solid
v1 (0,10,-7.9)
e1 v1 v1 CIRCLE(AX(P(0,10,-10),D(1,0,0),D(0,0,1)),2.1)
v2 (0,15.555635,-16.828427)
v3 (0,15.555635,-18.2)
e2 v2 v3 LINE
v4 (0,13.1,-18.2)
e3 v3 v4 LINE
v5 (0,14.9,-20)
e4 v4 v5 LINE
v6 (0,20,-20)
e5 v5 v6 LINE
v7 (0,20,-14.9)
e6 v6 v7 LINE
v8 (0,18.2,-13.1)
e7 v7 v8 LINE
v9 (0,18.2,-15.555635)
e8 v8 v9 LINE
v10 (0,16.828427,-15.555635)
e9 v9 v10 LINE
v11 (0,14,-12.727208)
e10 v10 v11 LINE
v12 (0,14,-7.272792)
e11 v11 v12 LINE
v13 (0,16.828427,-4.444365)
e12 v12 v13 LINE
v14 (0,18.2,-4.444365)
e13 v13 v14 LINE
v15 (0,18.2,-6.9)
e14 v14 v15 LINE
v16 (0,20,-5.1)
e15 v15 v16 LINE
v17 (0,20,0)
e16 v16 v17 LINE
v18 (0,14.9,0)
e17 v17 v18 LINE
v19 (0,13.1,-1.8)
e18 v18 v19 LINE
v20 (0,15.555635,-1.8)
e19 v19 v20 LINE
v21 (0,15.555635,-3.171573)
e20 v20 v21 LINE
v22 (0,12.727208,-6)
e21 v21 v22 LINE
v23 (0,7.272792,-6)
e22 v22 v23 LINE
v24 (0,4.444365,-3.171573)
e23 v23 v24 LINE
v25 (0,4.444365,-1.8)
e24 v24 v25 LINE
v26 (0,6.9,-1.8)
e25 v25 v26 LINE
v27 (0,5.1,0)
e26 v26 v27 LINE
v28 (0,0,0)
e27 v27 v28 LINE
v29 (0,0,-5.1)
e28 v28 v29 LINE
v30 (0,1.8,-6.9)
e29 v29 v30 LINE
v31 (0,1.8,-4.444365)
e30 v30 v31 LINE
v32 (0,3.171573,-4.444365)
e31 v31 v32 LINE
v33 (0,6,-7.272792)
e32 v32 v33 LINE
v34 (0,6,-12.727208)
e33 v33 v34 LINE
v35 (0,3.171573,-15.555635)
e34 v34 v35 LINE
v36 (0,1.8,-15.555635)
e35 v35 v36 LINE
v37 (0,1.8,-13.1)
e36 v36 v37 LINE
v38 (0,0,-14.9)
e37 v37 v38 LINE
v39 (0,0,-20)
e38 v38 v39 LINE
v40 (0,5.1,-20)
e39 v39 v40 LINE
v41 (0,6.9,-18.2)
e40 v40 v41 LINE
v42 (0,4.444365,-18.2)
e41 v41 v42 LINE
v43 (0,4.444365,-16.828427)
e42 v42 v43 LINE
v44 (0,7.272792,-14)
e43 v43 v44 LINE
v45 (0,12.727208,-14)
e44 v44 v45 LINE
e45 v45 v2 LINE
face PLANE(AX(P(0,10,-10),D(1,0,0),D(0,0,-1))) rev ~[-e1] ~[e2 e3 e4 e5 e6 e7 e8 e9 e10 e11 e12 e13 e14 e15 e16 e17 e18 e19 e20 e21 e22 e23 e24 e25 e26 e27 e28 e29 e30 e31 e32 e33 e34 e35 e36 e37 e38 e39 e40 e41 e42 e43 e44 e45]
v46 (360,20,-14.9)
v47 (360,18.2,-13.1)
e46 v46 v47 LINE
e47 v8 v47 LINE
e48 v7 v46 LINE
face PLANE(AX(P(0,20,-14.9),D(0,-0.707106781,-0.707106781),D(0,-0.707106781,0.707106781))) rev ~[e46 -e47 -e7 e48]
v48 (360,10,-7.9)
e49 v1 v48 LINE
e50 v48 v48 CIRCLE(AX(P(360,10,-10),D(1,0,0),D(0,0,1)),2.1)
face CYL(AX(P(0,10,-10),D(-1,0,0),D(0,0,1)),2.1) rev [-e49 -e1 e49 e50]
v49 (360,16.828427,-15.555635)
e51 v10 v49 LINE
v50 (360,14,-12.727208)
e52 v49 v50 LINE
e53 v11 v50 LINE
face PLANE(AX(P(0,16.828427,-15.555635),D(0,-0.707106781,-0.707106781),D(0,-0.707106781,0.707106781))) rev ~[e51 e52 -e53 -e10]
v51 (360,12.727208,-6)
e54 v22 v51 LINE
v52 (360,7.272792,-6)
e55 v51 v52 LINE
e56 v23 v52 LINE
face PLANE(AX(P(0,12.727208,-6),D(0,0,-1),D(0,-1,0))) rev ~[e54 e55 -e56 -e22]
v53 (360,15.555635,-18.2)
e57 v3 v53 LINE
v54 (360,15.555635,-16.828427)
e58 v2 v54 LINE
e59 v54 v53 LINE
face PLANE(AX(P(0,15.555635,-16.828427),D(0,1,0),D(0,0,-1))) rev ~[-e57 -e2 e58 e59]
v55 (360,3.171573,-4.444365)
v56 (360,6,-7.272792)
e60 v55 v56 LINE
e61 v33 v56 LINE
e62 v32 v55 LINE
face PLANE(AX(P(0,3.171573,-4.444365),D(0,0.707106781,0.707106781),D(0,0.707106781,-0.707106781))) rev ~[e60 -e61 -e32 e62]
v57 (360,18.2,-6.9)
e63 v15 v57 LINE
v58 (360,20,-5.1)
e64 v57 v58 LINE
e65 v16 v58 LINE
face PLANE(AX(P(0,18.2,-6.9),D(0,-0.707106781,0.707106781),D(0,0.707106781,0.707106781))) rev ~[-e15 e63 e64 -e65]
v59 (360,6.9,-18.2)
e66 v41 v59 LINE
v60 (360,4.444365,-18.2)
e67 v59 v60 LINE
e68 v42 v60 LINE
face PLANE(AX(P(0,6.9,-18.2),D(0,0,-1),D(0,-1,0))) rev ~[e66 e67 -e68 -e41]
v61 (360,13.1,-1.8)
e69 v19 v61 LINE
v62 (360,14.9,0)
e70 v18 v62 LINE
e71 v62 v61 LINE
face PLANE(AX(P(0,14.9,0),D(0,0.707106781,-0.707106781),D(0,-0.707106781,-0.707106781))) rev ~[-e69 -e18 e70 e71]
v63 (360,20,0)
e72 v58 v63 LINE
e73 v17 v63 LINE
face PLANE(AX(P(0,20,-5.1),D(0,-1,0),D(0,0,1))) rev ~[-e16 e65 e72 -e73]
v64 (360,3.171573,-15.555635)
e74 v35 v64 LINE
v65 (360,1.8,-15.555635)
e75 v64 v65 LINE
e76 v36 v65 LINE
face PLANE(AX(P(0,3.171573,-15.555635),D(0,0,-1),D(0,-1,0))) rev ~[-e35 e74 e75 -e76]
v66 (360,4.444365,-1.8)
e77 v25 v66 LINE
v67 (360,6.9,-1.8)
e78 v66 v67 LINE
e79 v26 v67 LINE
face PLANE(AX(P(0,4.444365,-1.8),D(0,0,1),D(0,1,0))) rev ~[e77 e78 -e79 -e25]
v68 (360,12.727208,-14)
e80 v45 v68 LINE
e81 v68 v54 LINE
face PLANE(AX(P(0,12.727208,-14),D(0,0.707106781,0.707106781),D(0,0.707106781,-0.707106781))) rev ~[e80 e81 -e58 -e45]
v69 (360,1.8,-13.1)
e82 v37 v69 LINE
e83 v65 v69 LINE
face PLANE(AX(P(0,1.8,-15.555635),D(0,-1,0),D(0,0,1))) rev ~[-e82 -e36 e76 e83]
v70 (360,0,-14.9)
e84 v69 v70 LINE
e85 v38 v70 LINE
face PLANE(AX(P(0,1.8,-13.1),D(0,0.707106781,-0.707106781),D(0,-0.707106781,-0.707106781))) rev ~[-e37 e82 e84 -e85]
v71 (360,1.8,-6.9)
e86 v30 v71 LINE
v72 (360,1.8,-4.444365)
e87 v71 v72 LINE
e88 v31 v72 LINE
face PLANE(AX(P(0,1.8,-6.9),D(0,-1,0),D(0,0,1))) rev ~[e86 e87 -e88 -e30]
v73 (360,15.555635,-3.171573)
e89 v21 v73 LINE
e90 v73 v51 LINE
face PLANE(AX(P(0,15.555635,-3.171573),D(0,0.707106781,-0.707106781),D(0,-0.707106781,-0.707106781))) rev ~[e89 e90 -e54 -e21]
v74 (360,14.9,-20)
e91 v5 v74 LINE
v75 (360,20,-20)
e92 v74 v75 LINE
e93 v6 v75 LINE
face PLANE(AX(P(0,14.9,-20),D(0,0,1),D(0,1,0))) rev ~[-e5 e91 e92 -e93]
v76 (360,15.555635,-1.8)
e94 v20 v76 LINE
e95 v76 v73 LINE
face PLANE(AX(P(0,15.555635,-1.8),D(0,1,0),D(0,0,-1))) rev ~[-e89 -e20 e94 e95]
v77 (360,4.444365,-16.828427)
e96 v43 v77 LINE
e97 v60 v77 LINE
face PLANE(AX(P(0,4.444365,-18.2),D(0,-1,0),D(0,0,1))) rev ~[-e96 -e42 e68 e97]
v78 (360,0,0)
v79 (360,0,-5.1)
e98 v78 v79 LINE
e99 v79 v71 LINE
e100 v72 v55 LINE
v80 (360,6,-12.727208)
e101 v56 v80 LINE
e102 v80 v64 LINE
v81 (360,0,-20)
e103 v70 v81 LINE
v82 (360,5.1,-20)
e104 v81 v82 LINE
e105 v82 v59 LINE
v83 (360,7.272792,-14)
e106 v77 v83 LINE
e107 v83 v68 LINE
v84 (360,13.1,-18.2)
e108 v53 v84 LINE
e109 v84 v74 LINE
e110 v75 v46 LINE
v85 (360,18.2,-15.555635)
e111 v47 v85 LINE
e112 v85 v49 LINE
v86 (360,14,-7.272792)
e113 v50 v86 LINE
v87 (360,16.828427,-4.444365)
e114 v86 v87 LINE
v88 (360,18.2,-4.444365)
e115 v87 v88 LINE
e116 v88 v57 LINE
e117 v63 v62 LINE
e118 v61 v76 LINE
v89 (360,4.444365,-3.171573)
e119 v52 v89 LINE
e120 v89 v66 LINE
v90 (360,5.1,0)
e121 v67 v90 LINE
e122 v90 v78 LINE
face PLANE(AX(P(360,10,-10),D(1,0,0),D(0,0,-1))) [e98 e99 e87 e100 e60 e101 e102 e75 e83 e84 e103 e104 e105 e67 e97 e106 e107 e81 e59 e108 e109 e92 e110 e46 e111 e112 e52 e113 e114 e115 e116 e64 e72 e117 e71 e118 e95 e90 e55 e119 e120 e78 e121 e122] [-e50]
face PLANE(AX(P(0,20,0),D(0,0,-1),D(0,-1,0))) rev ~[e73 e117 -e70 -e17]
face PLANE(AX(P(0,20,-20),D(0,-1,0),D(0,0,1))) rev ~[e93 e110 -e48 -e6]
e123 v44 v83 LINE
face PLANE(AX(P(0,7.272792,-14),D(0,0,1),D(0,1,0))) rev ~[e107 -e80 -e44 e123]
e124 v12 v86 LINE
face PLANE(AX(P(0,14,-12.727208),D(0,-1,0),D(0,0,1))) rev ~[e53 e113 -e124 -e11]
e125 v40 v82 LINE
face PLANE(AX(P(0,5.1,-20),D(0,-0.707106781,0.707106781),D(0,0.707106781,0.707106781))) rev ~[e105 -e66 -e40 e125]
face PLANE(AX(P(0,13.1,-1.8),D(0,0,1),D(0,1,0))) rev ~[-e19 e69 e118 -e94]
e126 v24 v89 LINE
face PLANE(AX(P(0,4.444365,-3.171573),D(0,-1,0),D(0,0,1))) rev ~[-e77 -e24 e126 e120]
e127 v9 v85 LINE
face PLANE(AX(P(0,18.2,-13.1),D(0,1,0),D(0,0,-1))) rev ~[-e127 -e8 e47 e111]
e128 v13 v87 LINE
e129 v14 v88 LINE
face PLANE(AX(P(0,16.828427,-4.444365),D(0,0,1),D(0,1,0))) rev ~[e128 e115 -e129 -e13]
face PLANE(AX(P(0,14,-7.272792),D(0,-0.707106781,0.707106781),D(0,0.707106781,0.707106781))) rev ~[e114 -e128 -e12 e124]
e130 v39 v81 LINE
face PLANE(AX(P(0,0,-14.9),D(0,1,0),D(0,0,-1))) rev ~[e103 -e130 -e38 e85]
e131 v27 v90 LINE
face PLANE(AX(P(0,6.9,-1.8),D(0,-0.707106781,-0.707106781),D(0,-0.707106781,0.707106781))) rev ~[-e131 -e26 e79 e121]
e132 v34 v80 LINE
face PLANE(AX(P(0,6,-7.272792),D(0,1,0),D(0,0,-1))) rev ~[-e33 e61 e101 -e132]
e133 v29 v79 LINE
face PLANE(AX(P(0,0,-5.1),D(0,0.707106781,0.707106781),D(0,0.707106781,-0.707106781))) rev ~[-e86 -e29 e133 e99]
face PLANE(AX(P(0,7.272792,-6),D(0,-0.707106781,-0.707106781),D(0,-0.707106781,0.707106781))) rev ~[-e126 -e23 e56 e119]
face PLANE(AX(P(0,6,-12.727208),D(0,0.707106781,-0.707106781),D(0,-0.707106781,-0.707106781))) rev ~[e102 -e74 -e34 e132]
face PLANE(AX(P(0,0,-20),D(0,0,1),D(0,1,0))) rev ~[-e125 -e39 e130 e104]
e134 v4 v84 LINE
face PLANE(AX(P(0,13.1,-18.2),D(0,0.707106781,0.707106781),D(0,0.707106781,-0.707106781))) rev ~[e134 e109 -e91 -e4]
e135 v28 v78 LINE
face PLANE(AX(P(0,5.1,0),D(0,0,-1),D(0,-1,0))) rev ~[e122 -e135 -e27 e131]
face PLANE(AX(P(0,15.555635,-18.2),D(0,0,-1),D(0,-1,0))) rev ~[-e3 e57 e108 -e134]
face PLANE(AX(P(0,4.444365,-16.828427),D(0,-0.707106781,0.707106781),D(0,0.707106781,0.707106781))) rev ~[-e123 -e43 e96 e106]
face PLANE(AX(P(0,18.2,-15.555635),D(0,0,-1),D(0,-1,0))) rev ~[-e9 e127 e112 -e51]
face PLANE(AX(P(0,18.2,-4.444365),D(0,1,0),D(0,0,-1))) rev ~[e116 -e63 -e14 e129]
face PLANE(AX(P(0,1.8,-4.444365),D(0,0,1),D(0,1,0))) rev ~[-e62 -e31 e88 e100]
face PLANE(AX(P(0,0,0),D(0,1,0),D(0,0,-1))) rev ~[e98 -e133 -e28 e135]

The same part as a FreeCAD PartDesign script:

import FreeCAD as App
import Part
import Sketcher
Q = App.Units.Quantity


def add_polygon(sketch, points):
    """Adds a closed chain of lines whose ends are joined by coincident constraints."""
    first, n = sketch.GeometryCount, len(points)
    for a, b in zip(points, points[1:] + points[:1]):
        sketch.addGeometry(Part.LineSegment(App.Vector(*a, 0), App.Vector(*b, 0)), False)
    for i in range(n):
        sketch.addConstraint(Sketcher.Constraint("Coincident", first + i, 2, first + (i + 1) % n, 1))

doc = App.newDocument("Part")
params = doc.addObject("Spreadsheet::Sheet", "Params")
for row, (alias, value) in enumerate([
    ("sketch1_diameter", "4.2 mm"),
    ("sketch1_length", "4 mm"),
    ("sketch1_width", "5.1 mm"),
    ("pad1_length", "360 mm"),
], start=1):
    params.set(f"A{row}", alias)
    params.set(f"B{row}", "=" + value)
    params.setAlias(f"B{row}", alias)

body = doc.addObject("PartDesign::Body", "Body")

# Sketch on YZ plane
sketch1 = doc.addObject("Sketcher::SketchObject", "Sketch")
body.addObject(sketch1)
sketch1.AttachmentSupport = (doc.YZ_Plane, [""])
sketch1.MapMode = "FlatFace"
add_polygon(sketch1, [(12.7, -6), (7.3, -6), (4.4, -3.2), (4.4, -1.8), (6.9, -1.8), (5.1, 0), (0, 0), (0, -5.1), (1.8, -6.9), (1.8, -4.4), (3.2, -4.4), (6, -7.3), (6, -12.7), (3.2, -15.6), (1.8, -15.6), (1.8, -13.1), (0, -14.9), (0, -20), (5.1, -20), (6.9, -18.2), (4.4, -18.2), (4.4, -16.8), (7.3, -14), (12.7, -14), (15.6, -16.8), (15.6, -18.2), (13.1, -18.2), (14.9, -20), (20, -20), (20, -14.9), (18.2, -13.1), (18.2, -15.6), (16.8, -15.6), (14, -12.7), (14, -7.3), (16.8, -4.4), (18.2, -4.4), (18.2, -6.9), (20, -5.1), (20, 0), (14.9, 0), (13.1, -1.8), (15.6, -1.8), (15.6, -3.2)])  # lines 0-43
sketch1.addGeometry(Part.Circle(App.Vector(10, -10, 0), App.Vector(0, 0, 1), 2.1), False)  # 44
sketch1.addConstraint(Sketcher.Constraint("Horizontal", 0))
sketch1.addConstraint(Sketcher.Constraint("Vertical", 2))
sketch1.addConstraint(Sketcher.Constraint("Horizontal", 3))
sketch1.addConstraint(Sketcher.Constraint("Horizontal", 5))
sketch1.addConstraint(Sketcher.Constraint("Vertical", 6))
sketch1.addConstraint(Sketcher.Constraint("Vertical", 8))
sketch1.addConstraint(Sketcher.Constraint("Horizontal", 9))
sketch1.addConstraint(Sketcher.Constraint("Vertical", 11))
sketch1.addConstraint(Sketcher.Constraint("Horizontal", 13))
sketch1.addConstraint(Sketcher.Constraint("Vertical", 14))
sketch1.addConstraint(Sketcher.Constraint("Vertical", 16))
sketch1.addConstraint(Sketcher.Constraint("Horizontal", 17))
sketch1.addConstraint(Sketcher.Constraint("Horizontal", 19))
sketch1.addConstraint(Sketcher.Constraint("Vertical", 20))
sketch1.addConstraint(Sketcher.Constraint("Horizontal", 22))
sketch1.addConstraint(Sketcher.Constraint("Vertical", 24))
sketch1.addConstraint(Sketcher.Constraint("Horizontal", 25))
sketch1.addConstraint(Sketcher.Constraint("Horizontal", 27))
sketch1.addConstraint(Sketcher.Constraint("Vertical", 28))
sketch1.addConstraint(Sketcher.Constraint("Vertical", 30))
sketch1.addConstraint(Sketcher.Constraint("Horizontal", 31))
sketch1.addConstraint(Sketcher.Constraint("Vertical", 33))
sketch1.addConstraint(Sketcher.Constraint("Horizontal", 35))
sketch1.addConstraint(Sketcher.Constraint("Vertical", 36))
sketch1.addConstraint(Sketcher.Constraint("Vertical", 38))
sketch1.addConstraint(Sketcher.Constraint("Horizontal", 39))
sketch1.addConstraint(Sketcher.Constraint("Horizontal", 41))
sketch1.addConstraint(Sketcher.Constraint("Vertical", 42))
sketch1.addConstraint(Sketcher.Constraint("Coincident", 5, 2, -1, 1))
sketch1.addConstraint(Sketcher.Constraint("PointOnObject", 15, 2, -2))
sketch1.addConstraint(Sketcher.Constraint("PointOnObject", 38, 2, -1))
sketch1.addConstraint(Sketcher.Constraint("Parallel", 1, 4))
sketch1.addConstraint(Sketcher.Constraint("Parallel", 4, 7))
sketch1.addConstraint(Sketcher.Constraint("Parallel", 7, 10))
sketch1.addConstraint(Sketcher.Constraint("Perpendicular", 10, 12))
sketch1.addConstraint(Sketcher.Constraint("Parallel", 12, 15))
sketch1.addConstraint(Sketcher.Constraint("Parallel", 15, 18))
sketch1.addConstraint(Sketcher.Constraint("Parallel", 18, 21))
sketch1.addConstraint(Sketcher.Constraint("Perpendicular", 21, 23))
sketch1.addConstraint(Sketcher.Constraint("Parallel", 23, 26))
sketch1.addConstraint(Sketcher.Constraint("Parallel", 26, 29))
sketch1.addConstraint(Sketcher.Constraint("Parallel", 29, 32))
sketch1.addConstraint(Sketcher.Constraint("Perpendicular", 32, 34))
sketch1.addConstraint(Sketcher.Constraint("Parallel", 34, 37))
sketch1.addConstraint(Sketcher.Constraint("Parallel", 37, 40))
sketch1.addConstraint(Sketcher.Constraint("Parallel", 40, 43))
sketch1.addConstraint(Sketcher.Constraint("Horizontal", 20, 2, 23, 2))
sketch1.addConstraint(Sketcher.Constraint("Horizontal", 19, 2, 24, 2))
sketch1.addConstraint(Sketcher.Constraint("Horizontal", 17, 2, 26, 2))
sketch1.addConstraint(Sketcher.Constraint("Horizontal", 15, 2, 28, 2))
sketch1.addConstraint(Sketcher.Constraint("Horizontal", 14, 2, 29, 2))
sketch1.addConstraint(Sketcher.Constraint("Horizontal", 13, 2, 30, 2))
sketch1.addConstraint(Sketcher.Constraint("Horizontal", 11, 2, 32, 2))
sketch1.addConstraint(Sketcher.Constraint("Horizontal", 10, 2, 33, 2))
sketch1.addConstraint(Sketcher.Constraint("Horizontal", 9, 2, 34, 2))
sketch1.addConstraint(Sketcher.Constraint("Horizontal", 7, 2, 36, 2))
sketch1.addConstraint(Sketcher.Constraint("Horizontal", 6, 2, 37, 2))
sketch1.addConstraint(Sketcher.Constraint("Horizontal", 3, 2, 40, 2))
sketch1.addConstraint(Sketcher.Constraint("Horizontal", 1, 2, 42, 2))
sketch1.addConstraint(Sketcher.Constraint("Vertical", 9, 2, 12, 2))
sketch1.addConstraint(Sketcher.Constraint("Vertical", 8, 2, 13, 2))
sketch1.addConstraint(Sketcher.Constraint("Vertical", 4, 2, 17, 2))
sketch1.addConstraint(Sketcher.Constraint("Vertical", 3, 2, 18, 2))
sketch1.addConstraint(Sketcher.Constraint("Vertical", 2, 2, 19, 2))
sketch1.addConstraint(Sketcher.Constraint("Vertical", 0, 2, 21, 2))
sketch1.addConstraint(Sketcher.Constraint("Vertical", 31, 2, 34, 2))
sketch1.addConstraint(Sketcher.Constraint("Vertical", 30, 2, 35, 2))
sketch1.addConstraint(Sketcher.Constraint("Vertical", 26, 2, 39, 2))
sketch1.addConstraint(Sketcher.Constraint("Vertical", 24, 2, 41, 2))
sketch1.addConstraint(Sketcher.Constraint("Equal", 19, 25))
sketch1.addConstraint(Sketcher.Constraint("Equal", 17, 27))
sketch1.addConstraint(Sketcher.Constraint("Equal", 13, 31))
sketch1.addConstraint(Sketcher.Constraint("Equal", 35, 2))
sketch1.addConstraint(Sketcher.Constraint("Equal", 39, 6))
sketch1.addConstraint(Sketcher.Constraint("Equal", 41, 8))
sketch1.addConstraint(Sketcher.Constraint("Equal", 22, 11))
sketch1.addConstraint(Sketcher.Constraint("Equal", 8, 14))
sketch1.addConstraint(Sketcher.Constraint("Equal", 6, 16))
sketch1.addConstraint(Sketcher.Constraint("Equal", 2, 20))
sketch1.addConstraint(Sketcher.Constraint("Equal", 4, 7))
sketch1.addConstraint(Sketcher.Constraint("Equal", 1, 10))
sketch1.addConstraint(Sketcher.Constraint("Diameter", 44, Q("4.2 mm")))
sketch1.addConstraint(Sketcher.Constraint("Distance", 1, Q("4 mm")))
sketch1.addConstraint(Sketcher.Constraint("DistanceX", 5, 2, 5, 1, Q("5.1 mm")))
sketch1.addConstraint(Sketcher.Constraint("DistanceX", -1, 1, 44, 3, Q("10 mm")))
sketch1.addConstraint(Sketcher.Constraint("DistanceY", 44, 3, -1, 1, Q("10 mm")))
sketch1.addConstraint(Sketcher.Constraint("DistanceY", 0, 2, -1, 1, Q("6 mm")))
sketch1.addConstraint(Sketcher.Constraint("DistanceY", 16, 2, -1, 1, Q("20 mm")))
sketch1.addConstraint(Sketcher.Constraint("DistanceY", 15, 2, 7, 2, Q("8 mm")))
sketch1.addConstraint(Sketcher.Constraint("DistanceX", 0, 2, 0, 1, Q("5.454416 mm")))
sketch1.setExpression("Constraints[125]", "Params.sketch1_diameter")
sketch1.setExpression("Constraints[126]", "Params.sketch1_length")
sketch1.setExpression("Constraints[127]", "Params.sketch1_width")
pad1 = doc.addObject("PartDesign::Pad", "Pad")
body.addObject(pad1)
pad1.Profile = sketch1
pad1.setExpression("Length", "Params.pad1_length")

doc.recompute()
